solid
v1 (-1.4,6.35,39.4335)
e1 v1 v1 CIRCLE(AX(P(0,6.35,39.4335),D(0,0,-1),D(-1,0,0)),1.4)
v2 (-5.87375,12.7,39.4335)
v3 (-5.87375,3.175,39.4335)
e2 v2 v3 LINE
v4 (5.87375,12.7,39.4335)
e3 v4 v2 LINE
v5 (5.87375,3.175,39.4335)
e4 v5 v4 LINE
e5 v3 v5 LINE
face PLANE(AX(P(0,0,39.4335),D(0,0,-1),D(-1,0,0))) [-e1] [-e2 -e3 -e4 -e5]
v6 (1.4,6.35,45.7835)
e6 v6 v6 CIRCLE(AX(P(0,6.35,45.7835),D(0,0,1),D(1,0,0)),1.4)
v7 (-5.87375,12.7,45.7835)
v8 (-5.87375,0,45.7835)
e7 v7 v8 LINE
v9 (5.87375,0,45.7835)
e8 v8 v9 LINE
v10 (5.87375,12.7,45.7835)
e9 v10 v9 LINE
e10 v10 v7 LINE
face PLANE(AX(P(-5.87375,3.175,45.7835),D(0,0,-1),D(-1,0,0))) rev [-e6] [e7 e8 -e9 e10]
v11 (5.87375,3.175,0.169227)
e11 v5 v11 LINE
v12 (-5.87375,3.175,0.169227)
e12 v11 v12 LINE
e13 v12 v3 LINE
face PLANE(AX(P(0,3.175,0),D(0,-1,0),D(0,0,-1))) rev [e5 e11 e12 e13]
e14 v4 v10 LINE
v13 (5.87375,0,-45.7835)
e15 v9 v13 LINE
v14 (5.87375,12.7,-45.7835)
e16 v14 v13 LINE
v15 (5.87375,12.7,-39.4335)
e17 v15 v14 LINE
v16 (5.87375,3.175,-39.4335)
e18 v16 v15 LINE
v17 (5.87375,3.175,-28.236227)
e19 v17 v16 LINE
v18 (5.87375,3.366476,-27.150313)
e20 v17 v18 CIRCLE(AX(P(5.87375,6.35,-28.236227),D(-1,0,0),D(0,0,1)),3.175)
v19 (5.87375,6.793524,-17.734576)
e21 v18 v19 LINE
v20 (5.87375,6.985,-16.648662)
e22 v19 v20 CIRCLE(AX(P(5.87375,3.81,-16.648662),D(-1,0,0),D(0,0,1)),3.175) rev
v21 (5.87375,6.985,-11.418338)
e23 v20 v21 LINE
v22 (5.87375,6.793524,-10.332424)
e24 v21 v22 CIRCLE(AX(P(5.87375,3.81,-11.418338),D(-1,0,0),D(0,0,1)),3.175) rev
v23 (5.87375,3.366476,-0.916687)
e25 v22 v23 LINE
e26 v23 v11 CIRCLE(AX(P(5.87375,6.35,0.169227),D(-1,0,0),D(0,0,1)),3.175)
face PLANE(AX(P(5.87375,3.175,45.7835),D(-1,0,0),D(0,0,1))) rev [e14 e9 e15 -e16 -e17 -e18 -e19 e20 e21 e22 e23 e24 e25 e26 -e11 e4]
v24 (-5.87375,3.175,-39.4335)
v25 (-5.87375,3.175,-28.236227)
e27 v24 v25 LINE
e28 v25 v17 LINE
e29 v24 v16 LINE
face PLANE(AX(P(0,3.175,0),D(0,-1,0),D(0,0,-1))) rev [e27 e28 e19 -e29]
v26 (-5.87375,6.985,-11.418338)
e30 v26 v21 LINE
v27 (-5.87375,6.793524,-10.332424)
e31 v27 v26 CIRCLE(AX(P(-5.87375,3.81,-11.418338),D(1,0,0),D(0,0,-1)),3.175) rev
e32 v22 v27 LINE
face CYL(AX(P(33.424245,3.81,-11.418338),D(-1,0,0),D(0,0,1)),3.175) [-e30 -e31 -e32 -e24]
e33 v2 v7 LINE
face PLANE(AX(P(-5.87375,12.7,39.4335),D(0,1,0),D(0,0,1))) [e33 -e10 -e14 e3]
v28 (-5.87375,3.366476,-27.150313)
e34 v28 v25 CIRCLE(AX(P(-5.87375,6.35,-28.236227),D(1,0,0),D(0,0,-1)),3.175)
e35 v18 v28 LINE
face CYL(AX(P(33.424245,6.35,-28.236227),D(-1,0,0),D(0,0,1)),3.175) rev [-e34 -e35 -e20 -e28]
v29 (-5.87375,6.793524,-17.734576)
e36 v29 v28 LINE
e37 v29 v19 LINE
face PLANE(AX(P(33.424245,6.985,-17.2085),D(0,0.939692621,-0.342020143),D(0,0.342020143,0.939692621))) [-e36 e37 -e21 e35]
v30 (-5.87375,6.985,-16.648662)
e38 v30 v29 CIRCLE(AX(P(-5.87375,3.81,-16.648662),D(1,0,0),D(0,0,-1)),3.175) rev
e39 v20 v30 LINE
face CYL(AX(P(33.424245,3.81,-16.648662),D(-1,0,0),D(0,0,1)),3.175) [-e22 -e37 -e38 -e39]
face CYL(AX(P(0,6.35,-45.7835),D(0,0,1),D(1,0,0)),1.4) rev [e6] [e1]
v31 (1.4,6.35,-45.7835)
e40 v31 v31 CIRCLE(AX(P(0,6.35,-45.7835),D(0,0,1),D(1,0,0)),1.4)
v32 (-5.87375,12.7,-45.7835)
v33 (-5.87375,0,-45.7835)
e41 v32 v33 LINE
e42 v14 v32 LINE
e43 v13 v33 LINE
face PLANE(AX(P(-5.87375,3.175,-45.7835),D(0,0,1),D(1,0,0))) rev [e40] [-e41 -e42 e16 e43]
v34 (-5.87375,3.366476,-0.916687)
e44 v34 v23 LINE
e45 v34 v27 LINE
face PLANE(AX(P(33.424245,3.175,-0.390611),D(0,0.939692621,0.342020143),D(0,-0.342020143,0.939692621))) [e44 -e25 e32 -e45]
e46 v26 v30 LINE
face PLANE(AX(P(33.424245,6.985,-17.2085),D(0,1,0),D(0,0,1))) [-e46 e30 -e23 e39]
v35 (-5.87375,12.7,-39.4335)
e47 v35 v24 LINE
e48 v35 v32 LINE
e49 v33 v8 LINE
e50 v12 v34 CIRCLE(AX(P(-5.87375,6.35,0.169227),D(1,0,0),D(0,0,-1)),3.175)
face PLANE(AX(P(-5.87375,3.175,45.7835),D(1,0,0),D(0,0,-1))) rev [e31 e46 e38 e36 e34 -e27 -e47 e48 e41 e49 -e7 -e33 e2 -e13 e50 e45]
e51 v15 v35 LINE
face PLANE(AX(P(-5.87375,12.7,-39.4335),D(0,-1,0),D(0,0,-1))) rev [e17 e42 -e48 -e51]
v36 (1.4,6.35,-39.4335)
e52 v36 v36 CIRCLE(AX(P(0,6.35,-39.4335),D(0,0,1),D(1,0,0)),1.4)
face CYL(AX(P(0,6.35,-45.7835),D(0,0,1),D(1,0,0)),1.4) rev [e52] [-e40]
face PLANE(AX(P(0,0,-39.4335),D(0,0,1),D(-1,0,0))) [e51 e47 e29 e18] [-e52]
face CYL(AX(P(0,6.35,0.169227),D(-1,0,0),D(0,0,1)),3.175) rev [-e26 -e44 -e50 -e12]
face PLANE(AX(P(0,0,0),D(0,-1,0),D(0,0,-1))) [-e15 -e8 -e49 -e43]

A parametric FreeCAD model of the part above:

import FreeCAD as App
import Part
import Sketcher
from FreeCAD import Vector
Q = App.Units.Quantity


def edges_at(feature, points):
    """Names of the edges that pass closest to the given points."""
    edges = feature.Shape.Edges
    near = lambda p: min(range(len(edges)), key=lambda i: edges[i].distToShape(Part.Vertex(*p))[0])
    return sorted({f"Edge{near(p) + 1}" for p in points})

doc = App.newDocument("Part")
body = doc.addObject("PartDesign::Body", "Body")

sketch1 = body.newObject("Sketcher::SketchObject", "Sketch")
sketch1.AttachmentSupport = (doc.getObject("XZ_Plane"), [""])
sketch1.MapMode = "FlatFace"
sketch1.addGeometry([
    Part.LineSegment(Vector(-5.87375, -45.7835, 0), Vector(-5.87375, 45.7835, 0)),
    Part.LineSegment(Vector(-5.87375, 45.7835, 0), Vector(5.87375, 45.7835, 0)),
    Part.LineSegment(Vector(5.87375, 45.7835, 0), Vector(5.87375, -45.7835, 0)),
    Part.LineSegment(Vector(5.87375, -45.7835, 0), Vector(-5.87375, -45.7835, 0)),
], False)
sketch1.addConstraint([
    Sketcher.Constraint("Coincident", 0, 2, 1, 1),
    Sketcher.Constraint("Coincident", 1, 2, 2, 1),
    Sketcher.Constraint("Coincident", 2, 2, 3, 1),
    Sketcher.Constraint("Coincident", 3, 2, 0, 1),
    Sketcher.Constraint("Vertical", 0),
    Sketcher.Constraint("Horizontal", 1),
    Sketcher.Constraint("Vertical", 2),
    Sketcher.Constraint("Horizontal", 3),
    Sketcher.Constraint("Symmetric", 0, 2, 2, 2, -1, 1),
    Sketcher.Constraint("DistanceY", 0, 1, 0, 2, Q("3.605 in")),
    Sketcher.Constraint("DistanceX", 1, 1, 1, 2, Q("0.4625 in")),
])
pad1 = body.newObject("PartDesign::Pad", "Pad")
pad1.Profile = sketch1
pad1.Length = Q("0.125 in")
pad1.Reversed = True

sketch2 = body.newObject("Sketcher::SketchObject", "Sketch001")
sketch2.AttachmentSupport = (doc.getObject("XY_Plane"), [""])
sketch2.MapMode = "FlatFace"
sketch2.AttachmentOffset = App.Placement(Vector(0, 0, 1.8025 * 25.4), App.Rotation())
sketch2.addGeometry([
    Part.LineSegment(Vector(-5.87375, 12.7, 0), Vector(-5.87375, 3.175, 0)),
    Part.LineSegment(Vector(-5.87375, 3.175, 0), Vector(5.87375, 3.175, 0)),
    Part.LineSegment(Vector(5.87375, 3.175, 0), Vector(5.87375, 12.7, 0)),
    Part.LineSegment(Vector(5.87375, 12.7, 0), Vector(-5.87375, 12.7, 0)),
], False)
sketch2.addConstraint([
    Sketcher.Constraint("Coincident", 0, 2, 1, 1),
    Sketcher.Constraint("Coincident", 1, 2, 2, 1),
    Sketcher.Constraint("Coincident", 2, 2, 3, 1),
    Sketcher.Constraint("Coincident", 3, 2, 0, 1),
    Sketcher.Constraint("Vertical", 0),
    Sketcher.Constraint("Horizontal", 1),
    Sketcher.Constraint("Vertical", 2),
    Sketcher.Constraint("Horizontal", 3),
    Sketcher.Constraint("DistanceY", -1, 1, 2, 2, Q("0.5 in")),
    Sketcher.Constraint("DistanceY", 0, 2, 0, 1, Q("0.375 in")),
    Sketcher.Constraint("DistanceX", 1, 1, 1, 2, Q("0.4625 in")),
    Sketcher.Constraint("DistanceX", 0, 2, -1, 1, Q("5.87375 mm")),
])
pad2 = body.newObject("PartDesign::Pad", "Pad001")
pad2.Profile = sketch2
pad2.Length = Q("0.25 in")
pad2.Reversed = True
doc.recompute()

mirrored = body.newObject("PartDesign::Mirrored", "Mirrored")
mirrored.Originals = [pad2]
mirrored.MirrorPlane = (doc.getObject("XY_Plane"), [""])
body.Tip = mirrored

sketch3 = body.newObject("Sketcher::SketchObject", "Sketch002")
sketch3.AttachmentSupport = (doc.getObject("XY_Plane"), [""])
sketch3.MapMode = "FlatFace"
sketch3.AttachmentOffset = App.Placement(Vector(0, 0, 1.8025 * 25.4), App.Rotation())
sketch3.addGeometry(Part.Circle(Vector(0, 6.35, 0), Vector(0, 0, 1), 1.4), False)
sketch3.addConstraint([
    Sketcher.Constraint("PointOnObject", 0, 3, -2),
    Sketcher.Constraint("Diameter", 0, Q("2.8 mm")),
    Sketcher.Constraint("DistanceY", -1, 1, 0, 3, Q("0.25 in")),
])
pocket1 = body.newObject("PartDesign::Pocket", "Pocket")
pocket1.Profile = sketch3
pocket1.Type = "ThroughAll"

sketch4 = body.newObject("Sketcher::SketchObject", "Sketch003")
sketch4.AttachmentSupport = (doc.getObject("YZ_Plane"), [""])
sketch4.MapMode = "FlatFace"
sketch4.AttachmentOffset = App.Placement(Vector(0, 0, -5.87375), App.Rotation())
sketch4.addGeometry([
    Part.LineSegment(Vector(6.985, -10.8585, 0), Vector(6.985, -17.2085, 0)),
    Part.LineSegment(Vector(6.985, -17.2085, 0), Vector(3.175, -27.676389, 0)),
    Part.LineSegment(Vector(3.175, -27.676389, 0), Vector(3.175, -0.390611, 0)),
    Part.LineSegment(Vector(3.175, -0.390611, 0), Vector(6.985, -10.8585, 0)),
], False)
sketch4.addConstraint([
    Sketcher.Constraint("Coincident", 0, 2, 1, 1),
    Sketcher.Constraint("Coincident", 1, 2, 2, 1),
    Sketcher.Constraint("Coincident", 2, 2, 3, 1),
    Sketcher.Constraint("Coincident", 3, 2, 0, 1),
    Sketcher.Constraint("Vertical", 0),
    Sketcher.Constraint("Vertical", 2),
    Sketcher.Constraint("Equal", 1, 3),
    Sketcher.Constraint("Angle", 1, Q("-110 deg")),
    Sketcher.Constraint("DistanceY", 0, 2, 0, 1, Q("0.25 in")),
    Sketcher.Constraint("DistanceX", 1, 2, 0, 2, Q("0.15 in")),
    Sketcher.Constraint("DistanceX", -1, 1, 0, 2, Q("0.275 in")),
    Sketcher.Constraint("DistanceY", 0, 2, -1, 1, Q("0.6775 in")),
])
pad3 = body.newObject("PartDesign::Pad", "Pad002")
pad3.Profile = sketch4
pad3.Length = Q("0.4625 in")
doc.recompute()

fillet = body.newObject("PartDesign::Fillet", "Fillet")
fillet.Base = (pad3, edges_at(pad3, [
    (0, 3.175, -27.676),
    (0, 6.985, -17.209),
    (0, 6.985, -10.858),
    (0, 3.175, -0.391),
]))
fillet.Radius = Q("0.125 in")

doc.recompute()
